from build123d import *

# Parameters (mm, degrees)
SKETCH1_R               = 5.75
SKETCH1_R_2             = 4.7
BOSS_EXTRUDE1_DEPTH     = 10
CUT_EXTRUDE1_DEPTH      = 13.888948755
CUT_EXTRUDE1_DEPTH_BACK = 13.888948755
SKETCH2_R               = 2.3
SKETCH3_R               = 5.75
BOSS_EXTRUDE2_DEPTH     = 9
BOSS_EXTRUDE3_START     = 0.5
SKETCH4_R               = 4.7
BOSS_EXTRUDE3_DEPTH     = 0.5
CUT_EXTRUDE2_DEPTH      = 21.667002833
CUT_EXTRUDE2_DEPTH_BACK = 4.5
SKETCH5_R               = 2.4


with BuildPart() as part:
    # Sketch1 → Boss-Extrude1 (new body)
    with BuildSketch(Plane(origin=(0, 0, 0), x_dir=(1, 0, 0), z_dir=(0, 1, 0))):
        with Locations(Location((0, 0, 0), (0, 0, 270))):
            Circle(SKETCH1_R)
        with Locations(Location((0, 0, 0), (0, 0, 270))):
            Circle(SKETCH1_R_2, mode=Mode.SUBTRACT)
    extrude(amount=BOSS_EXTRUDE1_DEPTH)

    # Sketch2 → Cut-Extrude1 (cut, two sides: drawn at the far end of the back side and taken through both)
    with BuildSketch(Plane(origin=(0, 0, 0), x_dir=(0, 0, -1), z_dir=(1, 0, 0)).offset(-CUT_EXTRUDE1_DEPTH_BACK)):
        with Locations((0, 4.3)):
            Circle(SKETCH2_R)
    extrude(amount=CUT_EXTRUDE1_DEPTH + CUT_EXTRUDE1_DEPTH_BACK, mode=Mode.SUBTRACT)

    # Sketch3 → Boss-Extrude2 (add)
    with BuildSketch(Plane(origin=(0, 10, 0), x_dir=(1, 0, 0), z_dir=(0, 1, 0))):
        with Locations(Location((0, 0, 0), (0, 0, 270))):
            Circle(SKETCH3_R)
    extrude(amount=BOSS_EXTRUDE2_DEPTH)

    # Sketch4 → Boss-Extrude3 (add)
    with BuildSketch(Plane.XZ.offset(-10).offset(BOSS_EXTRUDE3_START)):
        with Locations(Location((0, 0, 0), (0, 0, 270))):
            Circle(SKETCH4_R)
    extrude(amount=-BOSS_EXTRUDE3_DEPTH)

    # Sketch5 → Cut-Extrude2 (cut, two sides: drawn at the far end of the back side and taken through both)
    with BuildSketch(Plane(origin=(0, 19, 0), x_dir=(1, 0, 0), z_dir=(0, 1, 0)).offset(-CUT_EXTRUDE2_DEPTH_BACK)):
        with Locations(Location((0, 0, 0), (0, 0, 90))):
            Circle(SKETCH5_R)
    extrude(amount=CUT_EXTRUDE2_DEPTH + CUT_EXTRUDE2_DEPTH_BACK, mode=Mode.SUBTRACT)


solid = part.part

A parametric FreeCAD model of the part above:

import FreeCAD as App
import Part
import Sketcher
Q = App.Units.Quantity

doc = App.newDocument("Part")
body = doc.addObject("PartDesign::Body", "Body")

sketch1 = body.newObject("Sketcher::SketchObject", "Sketch")
sketch1.AttachmentSupport = (doc.getObject("XZ_Plane"), [""])
sketch1.MapMode = "FlatFace"
sketch1.addGeometry([
    Part.Circle(App.Vector(0, 0, 0), App.Vector(0, 0, 1), 5.75),
    Part.Circle(App.Vector(0, 0, 0), App.Vector(0, 0, 1), 4.7),
], False)
sketch1.addConstraint([
    Sketcher.Constraint("Coincident", 0, 3, -1, 1),
    Sketcher.Constraint("Coincident", 1, 3, -1, 1),
    Sketcher.Constraint("Diameter", 0, Q("11.5 mm")),
    Sketcher.Constraint("Diameter", 1, Q("9.4 mm")),
])
pad1 = body.newObject("PartDesign::Pad", "Pad")
pad1.Profile = sketch1
pad1.Length = 10
pad1.Reversed = True

sketch2 = body.newObject("Sketcher::SketchObject", "Sketch001")
sketch2.AttachmentSupport = (doc.getObject("YZ_Plane"), [""])
sketch2.MapMode = "FlatFace"
sketch2.addGeometry(Part.Circle(App.Vector(4.3, 0, 0), App.Vector(0, 0, 1), 2.3), False)
sketch2.addConstraint([
    Sketcher.Constraint("PointOnObject", 0, 3, -1),
    Sketcher.Constraint("Diameter", 0, Q("4.6 mm")),
    Sketcher.Constraint("DistanceX", -1, 1, 0, 3, Q("4.3 mm")),
])
pocket1 = body.newObject("PartDesign::Pocket", "Pocket")
pocket1.Profile = sketch2
pocket1.Type = "ThroughAll"
pocket1.Midplane = True

sketch3 = body.newObject("Sketcher::SketchObject", "Sketch002")
sketch3.AttachmentSupport = (doc.getObject("XZ_Plane"), [""])
sketch3.MapMode = "FlatFace"
sketch3.AttachmentOffset = App.Placement(App.Vector(0, 0, -10), App.Rotation())
sketch3.addGeometry(Part.Circle(App.Vector(0, 0, 0), App.Vector(0, 0, 1), 5.75), False)
sketch3.addConstraint([
    Sketcher.Constraint("Coincident", 0, 3, -1, 1),
    Sketcher.Constraint("Diameter", 0, Q("11.5 mm")),
])
pad2 = body.newObject("PartDesign::Pad", "Pad001")
pad2.Profile = sketch3
pad2.Length = 9
pad2.Reversed = True

sketch4 = body.newObject("Sketcher::SketchObject", "Sketch003")
sketch4.AttachmentSupport = (doc.getObject("XZ_Plane"), [""])
sketch4.MapMode = "FlatFace"
sketch4.AttachmentOffset = App.Placement(App.Vector(0, 0, -9.5), App.Rotation())
sketch4.addGeometry(Part.Circle(App.Vector(0, 0, 0), App.Vector(0, 0, 1), 4.7), False)
sketch4.addConstraint([
    Sketcher.Constraint("Coincident", 0, 3, -1, 1),
    Sketcher.Constraint("Diameter", 0, Q("9.4 mm")),
])
pad3 = body.newObject("PartDesign::Pad", "Pad002")
pad3.Profile = sketch4
pad3.Length = 0.5
pad3.Reversed = True

sketch5 = body.newObject("Sketcher::SketchObject", "Sketch004")
sketch5.AttachmentSupport = (doc.getObject("XZ_Plane"), [""])
sketch5.MapMode = "FlatFace"
sketch5.AttachmentOffset = App.Placement(App.Vector(0, 0, -19), App.Rotation())
sketch5.addGeometry(Part.Circle(App.Vector(0, 0, 0), App.Vector(0, 0, 1), 2.4), False)
sketch5.addConstraint([
    Sketcher.Constraint("Coincident", 0, 3, -1, 1),
    Sketcher.Constraint("Diameter", 0, Q("4.8 mm")),
])
pocket2 = body.newObject("PartDesign::Pocket", "Pocket001")
pocket2.Profile = sketch5
pocket2.Type = "TwoLengths"
pocket2.Length = 21.667003
pocket2.Length2 = 4.5

doc.recompute()
